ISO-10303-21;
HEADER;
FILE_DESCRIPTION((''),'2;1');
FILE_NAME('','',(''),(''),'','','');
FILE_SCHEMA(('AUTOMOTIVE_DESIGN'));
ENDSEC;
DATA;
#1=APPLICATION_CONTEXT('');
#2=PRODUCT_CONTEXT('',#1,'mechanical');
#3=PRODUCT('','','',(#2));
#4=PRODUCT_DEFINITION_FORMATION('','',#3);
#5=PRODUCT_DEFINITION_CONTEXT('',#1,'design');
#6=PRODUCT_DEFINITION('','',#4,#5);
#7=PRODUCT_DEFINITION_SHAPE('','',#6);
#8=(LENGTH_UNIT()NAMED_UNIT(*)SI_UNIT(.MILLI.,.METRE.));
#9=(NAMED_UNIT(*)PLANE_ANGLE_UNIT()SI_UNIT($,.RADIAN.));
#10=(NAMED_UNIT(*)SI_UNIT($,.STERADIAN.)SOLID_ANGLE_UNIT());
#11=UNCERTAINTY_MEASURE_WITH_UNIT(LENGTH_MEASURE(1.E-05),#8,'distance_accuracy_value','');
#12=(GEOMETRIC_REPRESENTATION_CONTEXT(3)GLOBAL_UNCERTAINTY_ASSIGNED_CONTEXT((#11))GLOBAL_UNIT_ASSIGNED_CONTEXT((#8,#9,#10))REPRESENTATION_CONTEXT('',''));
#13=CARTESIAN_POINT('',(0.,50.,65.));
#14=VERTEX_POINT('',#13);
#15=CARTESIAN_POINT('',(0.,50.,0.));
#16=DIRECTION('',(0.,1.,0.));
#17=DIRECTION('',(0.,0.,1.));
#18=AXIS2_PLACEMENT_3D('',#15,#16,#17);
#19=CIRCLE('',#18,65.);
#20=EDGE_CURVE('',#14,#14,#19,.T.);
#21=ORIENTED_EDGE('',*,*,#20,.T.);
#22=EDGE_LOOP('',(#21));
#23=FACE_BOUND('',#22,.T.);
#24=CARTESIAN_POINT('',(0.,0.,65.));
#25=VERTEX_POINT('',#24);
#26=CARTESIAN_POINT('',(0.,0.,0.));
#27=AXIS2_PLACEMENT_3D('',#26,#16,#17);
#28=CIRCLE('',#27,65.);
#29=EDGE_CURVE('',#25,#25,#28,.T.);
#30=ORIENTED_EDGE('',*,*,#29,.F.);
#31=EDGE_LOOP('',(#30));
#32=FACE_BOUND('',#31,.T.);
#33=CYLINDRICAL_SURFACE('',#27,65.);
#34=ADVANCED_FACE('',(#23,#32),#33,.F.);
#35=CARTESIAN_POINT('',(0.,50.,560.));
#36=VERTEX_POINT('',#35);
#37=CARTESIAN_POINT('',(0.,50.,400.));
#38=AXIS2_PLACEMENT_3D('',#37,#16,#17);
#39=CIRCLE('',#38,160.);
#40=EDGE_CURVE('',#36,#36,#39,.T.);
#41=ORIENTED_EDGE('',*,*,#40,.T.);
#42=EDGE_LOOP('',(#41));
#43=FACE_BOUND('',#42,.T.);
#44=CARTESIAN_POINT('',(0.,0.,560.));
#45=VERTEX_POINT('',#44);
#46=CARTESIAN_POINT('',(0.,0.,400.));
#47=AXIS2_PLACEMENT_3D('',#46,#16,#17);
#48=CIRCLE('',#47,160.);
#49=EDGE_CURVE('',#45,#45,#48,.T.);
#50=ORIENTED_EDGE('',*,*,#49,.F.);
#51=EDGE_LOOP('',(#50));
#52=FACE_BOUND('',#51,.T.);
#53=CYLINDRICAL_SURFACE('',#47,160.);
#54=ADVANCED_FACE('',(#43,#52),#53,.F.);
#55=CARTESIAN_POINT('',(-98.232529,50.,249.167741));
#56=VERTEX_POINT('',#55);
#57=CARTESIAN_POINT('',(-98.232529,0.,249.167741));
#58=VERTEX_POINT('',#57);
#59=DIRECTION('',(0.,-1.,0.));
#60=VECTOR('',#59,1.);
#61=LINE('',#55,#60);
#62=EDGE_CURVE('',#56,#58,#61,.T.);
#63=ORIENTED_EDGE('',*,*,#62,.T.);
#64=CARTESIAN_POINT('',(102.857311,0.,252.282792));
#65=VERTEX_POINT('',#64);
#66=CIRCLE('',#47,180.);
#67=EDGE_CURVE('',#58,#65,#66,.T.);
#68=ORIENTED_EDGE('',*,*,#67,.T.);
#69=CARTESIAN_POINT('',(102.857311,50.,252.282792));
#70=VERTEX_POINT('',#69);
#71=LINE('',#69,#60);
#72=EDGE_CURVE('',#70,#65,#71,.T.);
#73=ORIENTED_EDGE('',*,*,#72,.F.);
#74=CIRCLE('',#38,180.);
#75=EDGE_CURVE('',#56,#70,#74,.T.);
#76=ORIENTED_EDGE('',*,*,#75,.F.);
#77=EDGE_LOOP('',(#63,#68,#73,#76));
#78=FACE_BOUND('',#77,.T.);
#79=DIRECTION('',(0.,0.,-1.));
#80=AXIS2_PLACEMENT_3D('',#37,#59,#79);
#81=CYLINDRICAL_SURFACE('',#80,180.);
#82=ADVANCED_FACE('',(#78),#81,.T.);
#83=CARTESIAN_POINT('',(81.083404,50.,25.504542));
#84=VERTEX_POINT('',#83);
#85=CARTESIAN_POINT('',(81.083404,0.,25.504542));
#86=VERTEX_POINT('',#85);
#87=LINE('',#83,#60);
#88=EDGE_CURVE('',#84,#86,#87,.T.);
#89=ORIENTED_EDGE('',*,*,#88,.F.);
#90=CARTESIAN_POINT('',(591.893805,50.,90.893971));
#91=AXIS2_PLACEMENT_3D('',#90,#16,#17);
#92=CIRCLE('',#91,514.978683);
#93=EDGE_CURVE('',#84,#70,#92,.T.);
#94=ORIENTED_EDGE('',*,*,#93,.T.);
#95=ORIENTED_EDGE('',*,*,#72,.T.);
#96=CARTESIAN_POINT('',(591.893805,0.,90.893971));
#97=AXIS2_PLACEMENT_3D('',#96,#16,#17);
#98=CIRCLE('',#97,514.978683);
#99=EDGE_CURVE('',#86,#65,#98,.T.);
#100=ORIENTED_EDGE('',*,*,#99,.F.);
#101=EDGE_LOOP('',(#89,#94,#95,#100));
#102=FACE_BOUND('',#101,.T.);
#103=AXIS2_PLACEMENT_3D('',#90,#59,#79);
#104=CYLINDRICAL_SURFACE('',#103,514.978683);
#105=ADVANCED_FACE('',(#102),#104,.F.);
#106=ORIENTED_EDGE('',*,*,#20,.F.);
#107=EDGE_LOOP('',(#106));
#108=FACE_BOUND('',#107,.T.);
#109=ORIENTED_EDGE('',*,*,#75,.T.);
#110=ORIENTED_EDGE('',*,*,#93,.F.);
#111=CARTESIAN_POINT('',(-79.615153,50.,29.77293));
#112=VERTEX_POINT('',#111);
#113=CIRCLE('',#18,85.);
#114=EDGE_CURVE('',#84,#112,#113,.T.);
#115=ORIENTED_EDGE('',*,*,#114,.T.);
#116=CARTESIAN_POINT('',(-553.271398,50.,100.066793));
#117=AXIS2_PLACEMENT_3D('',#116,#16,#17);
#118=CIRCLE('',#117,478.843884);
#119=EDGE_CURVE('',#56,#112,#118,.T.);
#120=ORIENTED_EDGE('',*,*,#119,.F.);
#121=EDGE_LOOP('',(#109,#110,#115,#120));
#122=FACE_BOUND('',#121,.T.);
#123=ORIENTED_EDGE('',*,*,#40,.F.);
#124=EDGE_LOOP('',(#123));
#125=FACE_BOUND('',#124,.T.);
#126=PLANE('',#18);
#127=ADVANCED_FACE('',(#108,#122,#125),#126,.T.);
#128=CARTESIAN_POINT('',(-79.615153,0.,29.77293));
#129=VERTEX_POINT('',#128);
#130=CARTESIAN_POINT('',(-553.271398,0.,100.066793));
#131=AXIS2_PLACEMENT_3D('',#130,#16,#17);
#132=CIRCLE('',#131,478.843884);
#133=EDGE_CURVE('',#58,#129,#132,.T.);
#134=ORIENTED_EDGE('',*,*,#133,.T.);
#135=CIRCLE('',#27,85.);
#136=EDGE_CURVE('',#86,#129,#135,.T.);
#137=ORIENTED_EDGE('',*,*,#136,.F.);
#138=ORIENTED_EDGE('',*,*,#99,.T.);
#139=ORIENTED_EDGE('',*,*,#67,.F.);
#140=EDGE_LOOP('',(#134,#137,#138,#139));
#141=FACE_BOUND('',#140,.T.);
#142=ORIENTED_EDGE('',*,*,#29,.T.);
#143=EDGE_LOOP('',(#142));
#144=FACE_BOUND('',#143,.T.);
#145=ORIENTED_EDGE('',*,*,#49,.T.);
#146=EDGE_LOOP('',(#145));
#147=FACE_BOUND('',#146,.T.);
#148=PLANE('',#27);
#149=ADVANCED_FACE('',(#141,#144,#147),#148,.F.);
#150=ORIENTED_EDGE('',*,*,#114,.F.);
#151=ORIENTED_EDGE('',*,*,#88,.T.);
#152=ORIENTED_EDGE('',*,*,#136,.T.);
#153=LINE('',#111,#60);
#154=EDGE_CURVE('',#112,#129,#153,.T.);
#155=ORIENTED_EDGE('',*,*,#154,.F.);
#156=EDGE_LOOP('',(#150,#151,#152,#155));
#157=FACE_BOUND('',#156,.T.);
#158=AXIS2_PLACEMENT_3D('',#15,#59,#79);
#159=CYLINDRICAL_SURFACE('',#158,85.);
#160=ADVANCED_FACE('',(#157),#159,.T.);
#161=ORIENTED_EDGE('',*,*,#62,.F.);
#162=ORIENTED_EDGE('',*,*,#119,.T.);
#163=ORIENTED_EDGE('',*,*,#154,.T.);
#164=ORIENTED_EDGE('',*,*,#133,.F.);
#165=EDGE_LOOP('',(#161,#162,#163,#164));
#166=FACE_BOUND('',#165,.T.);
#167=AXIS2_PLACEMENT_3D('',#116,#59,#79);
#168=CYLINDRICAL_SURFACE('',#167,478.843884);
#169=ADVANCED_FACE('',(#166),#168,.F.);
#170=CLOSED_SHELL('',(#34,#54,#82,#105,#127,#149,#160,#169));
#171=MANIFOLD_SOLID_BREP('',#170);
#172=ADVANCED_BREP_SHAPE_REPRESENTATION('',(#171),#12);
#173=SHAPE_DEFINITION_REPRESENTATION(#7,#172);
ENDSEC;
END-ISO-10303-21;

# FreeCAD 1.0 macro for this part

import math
import FreeCAD as App
import Part
import Sketcher
Q = App.Units.Quantity

doc = App.newDocument("Part")
body = doc.addObject("PartDesign::Body", "Body")

# Sketch on XZ plane
sketch1 = body.newObject("Sketcher::SketchObject", "Sketch")
sketch1.AttachmentSupport = (doc.getObject("XZ_Plane"), [""])
sketch1.MapMode = "FlatFace"
sketch1.addGeometry([
    Part.ArcOfCircle(Part.Circle(App.Vector(-553.271398, 100.066793, 0), App.Vector(0, 0, 1), 478.843884), math.radians(-8.441476), math.radians(18.142232)),
    Part.ArcOfCircle(Part.Circle(App.Vector(0, 400, 0), App.Vector(0, 0, 1), 180), math.radians(-55.15003), math.radians(236.925008)),
    Part.ArcOfCircle(Part.Circle(App.Vector(591.893805, 90.893971, 0), App.Vector(0, 0, 1), 514.978683), math.radians(161.736394), math.radians(187.294825)),
    Part.ArcOfCircle(Part.Circle(App.Vector(0, 0, 0), App.Vector(0, 0, 1), 85), math.radians(159.496184), math.radians(377.460812)),
], False)
sketch1.addConstraint([
    Sketcher.Constraint("Coincident", 0, 2, 1, 2),
    Sketcher.Constraint("Coincident", 1, 1, 2, 1),
    Sketcher.Constraint("Coincident", 2, 2, 3, 2),
    Sketcher.Constraint("Coincident", 3, 1, 0, 1),
    Sketcher.Constraint("Coincident", 3, 3, -1, 1),
    Sketcher.Constraint("PointOnObject", 1, 3, -2),
    Sketcher.Constraint("Radius", 1, Q("180 mm")),
    Sketcher.Constraint("Radius", 3, Q("85 mm")),
    Sketcher.Constraint("DistanceY", -1, 1, 1, 3, Q("400 mm")),
    Sketcher.Constraint("Radius", 0, Q("478.843884 mm")),
    Sketcher.Constraint("Radius", 2, Q("514.978683 mm")),
    Sketcher.Constraint("DistanceY", 0, 3, 1, 1, Q("152.215999 mm")),
    Sketcher.Constraint("DistanceX", 0, 3, -1, 1, Q("553.271398 mm")),
    Sketcher.Constraint("DistanceY", 2, 2, 0, 2, Q("223.6632 mm")),
    Sketcher.Constraint("DistanceY", -1, 1, 2, 3, Q("90.893971 mm")),
])
pad1 = body.newObject("PartDesign::Pad", "Pad")
pad1.Profile = sketch1
pad1.Length = 50
pad1.Reversed = True

# Sketch on XZ plane
sketch2 = body.newObject("Sketcher::SketchObject", "Sketch001")
sketch2.AttachmentSupport = (doc.getObject("XZ_Plane"), [""])
sketch2.MapMode = "FlatFace"
sketch2.AttachmentOffset = App.Placement(App.Vector(0, 0, -50), App.Rotation())
sketch2.addGeometry(Part.Circle(App.Vector(0, 0, 0), App.Vector(0, 0, 1), 65), False)
sketch2.addConstraint([
    Sketcher.Constraint("Coincident", 0, 3, -1, 1),
    Sketcher.Constraint("Diameter", 0, Q("130 mm")),
])
pocket1 = body.newObject("PartDesign::Pocket", "Pocket")
pocket1.Profile = sketch2
pocket1.Length = 50
pocket1.Reversed = True

# Sketch on XZ plane
sketch3 = body.newObject("Sketcher::SketchObject", "Sketch002")
sketch3.AttachmentSupport = (doc.getObject("XZ_Plane"), [""])
sketch3.MapMode = "FlatFace"
sketch3.AttachmentOffset = App.Placement(App.Vector(0, 0, -50), App.Rotation())
sketch3.addGeometry(Part.Circle(App.Vector(0, 400, 0), App.Vector(0, 0, 1), 160), False)
sketch3.addConstraint([
    Sketcher.Constraint("PointOnObject", 0, 3, -2),
    Sketcher.Constraint("Diameter", 0, Q("320 mm")),
    Sketcher.Constraint("DistanceY", -1, 1, 0, 3, Q("400 mm")),
])
pocket2 = body.newObject("PartDesign::Pocket", "Pocket001")
pocket2.Profile = sketch3
pocket2.Length = 50
pocket2.Reversed = True

doc.recompute()
